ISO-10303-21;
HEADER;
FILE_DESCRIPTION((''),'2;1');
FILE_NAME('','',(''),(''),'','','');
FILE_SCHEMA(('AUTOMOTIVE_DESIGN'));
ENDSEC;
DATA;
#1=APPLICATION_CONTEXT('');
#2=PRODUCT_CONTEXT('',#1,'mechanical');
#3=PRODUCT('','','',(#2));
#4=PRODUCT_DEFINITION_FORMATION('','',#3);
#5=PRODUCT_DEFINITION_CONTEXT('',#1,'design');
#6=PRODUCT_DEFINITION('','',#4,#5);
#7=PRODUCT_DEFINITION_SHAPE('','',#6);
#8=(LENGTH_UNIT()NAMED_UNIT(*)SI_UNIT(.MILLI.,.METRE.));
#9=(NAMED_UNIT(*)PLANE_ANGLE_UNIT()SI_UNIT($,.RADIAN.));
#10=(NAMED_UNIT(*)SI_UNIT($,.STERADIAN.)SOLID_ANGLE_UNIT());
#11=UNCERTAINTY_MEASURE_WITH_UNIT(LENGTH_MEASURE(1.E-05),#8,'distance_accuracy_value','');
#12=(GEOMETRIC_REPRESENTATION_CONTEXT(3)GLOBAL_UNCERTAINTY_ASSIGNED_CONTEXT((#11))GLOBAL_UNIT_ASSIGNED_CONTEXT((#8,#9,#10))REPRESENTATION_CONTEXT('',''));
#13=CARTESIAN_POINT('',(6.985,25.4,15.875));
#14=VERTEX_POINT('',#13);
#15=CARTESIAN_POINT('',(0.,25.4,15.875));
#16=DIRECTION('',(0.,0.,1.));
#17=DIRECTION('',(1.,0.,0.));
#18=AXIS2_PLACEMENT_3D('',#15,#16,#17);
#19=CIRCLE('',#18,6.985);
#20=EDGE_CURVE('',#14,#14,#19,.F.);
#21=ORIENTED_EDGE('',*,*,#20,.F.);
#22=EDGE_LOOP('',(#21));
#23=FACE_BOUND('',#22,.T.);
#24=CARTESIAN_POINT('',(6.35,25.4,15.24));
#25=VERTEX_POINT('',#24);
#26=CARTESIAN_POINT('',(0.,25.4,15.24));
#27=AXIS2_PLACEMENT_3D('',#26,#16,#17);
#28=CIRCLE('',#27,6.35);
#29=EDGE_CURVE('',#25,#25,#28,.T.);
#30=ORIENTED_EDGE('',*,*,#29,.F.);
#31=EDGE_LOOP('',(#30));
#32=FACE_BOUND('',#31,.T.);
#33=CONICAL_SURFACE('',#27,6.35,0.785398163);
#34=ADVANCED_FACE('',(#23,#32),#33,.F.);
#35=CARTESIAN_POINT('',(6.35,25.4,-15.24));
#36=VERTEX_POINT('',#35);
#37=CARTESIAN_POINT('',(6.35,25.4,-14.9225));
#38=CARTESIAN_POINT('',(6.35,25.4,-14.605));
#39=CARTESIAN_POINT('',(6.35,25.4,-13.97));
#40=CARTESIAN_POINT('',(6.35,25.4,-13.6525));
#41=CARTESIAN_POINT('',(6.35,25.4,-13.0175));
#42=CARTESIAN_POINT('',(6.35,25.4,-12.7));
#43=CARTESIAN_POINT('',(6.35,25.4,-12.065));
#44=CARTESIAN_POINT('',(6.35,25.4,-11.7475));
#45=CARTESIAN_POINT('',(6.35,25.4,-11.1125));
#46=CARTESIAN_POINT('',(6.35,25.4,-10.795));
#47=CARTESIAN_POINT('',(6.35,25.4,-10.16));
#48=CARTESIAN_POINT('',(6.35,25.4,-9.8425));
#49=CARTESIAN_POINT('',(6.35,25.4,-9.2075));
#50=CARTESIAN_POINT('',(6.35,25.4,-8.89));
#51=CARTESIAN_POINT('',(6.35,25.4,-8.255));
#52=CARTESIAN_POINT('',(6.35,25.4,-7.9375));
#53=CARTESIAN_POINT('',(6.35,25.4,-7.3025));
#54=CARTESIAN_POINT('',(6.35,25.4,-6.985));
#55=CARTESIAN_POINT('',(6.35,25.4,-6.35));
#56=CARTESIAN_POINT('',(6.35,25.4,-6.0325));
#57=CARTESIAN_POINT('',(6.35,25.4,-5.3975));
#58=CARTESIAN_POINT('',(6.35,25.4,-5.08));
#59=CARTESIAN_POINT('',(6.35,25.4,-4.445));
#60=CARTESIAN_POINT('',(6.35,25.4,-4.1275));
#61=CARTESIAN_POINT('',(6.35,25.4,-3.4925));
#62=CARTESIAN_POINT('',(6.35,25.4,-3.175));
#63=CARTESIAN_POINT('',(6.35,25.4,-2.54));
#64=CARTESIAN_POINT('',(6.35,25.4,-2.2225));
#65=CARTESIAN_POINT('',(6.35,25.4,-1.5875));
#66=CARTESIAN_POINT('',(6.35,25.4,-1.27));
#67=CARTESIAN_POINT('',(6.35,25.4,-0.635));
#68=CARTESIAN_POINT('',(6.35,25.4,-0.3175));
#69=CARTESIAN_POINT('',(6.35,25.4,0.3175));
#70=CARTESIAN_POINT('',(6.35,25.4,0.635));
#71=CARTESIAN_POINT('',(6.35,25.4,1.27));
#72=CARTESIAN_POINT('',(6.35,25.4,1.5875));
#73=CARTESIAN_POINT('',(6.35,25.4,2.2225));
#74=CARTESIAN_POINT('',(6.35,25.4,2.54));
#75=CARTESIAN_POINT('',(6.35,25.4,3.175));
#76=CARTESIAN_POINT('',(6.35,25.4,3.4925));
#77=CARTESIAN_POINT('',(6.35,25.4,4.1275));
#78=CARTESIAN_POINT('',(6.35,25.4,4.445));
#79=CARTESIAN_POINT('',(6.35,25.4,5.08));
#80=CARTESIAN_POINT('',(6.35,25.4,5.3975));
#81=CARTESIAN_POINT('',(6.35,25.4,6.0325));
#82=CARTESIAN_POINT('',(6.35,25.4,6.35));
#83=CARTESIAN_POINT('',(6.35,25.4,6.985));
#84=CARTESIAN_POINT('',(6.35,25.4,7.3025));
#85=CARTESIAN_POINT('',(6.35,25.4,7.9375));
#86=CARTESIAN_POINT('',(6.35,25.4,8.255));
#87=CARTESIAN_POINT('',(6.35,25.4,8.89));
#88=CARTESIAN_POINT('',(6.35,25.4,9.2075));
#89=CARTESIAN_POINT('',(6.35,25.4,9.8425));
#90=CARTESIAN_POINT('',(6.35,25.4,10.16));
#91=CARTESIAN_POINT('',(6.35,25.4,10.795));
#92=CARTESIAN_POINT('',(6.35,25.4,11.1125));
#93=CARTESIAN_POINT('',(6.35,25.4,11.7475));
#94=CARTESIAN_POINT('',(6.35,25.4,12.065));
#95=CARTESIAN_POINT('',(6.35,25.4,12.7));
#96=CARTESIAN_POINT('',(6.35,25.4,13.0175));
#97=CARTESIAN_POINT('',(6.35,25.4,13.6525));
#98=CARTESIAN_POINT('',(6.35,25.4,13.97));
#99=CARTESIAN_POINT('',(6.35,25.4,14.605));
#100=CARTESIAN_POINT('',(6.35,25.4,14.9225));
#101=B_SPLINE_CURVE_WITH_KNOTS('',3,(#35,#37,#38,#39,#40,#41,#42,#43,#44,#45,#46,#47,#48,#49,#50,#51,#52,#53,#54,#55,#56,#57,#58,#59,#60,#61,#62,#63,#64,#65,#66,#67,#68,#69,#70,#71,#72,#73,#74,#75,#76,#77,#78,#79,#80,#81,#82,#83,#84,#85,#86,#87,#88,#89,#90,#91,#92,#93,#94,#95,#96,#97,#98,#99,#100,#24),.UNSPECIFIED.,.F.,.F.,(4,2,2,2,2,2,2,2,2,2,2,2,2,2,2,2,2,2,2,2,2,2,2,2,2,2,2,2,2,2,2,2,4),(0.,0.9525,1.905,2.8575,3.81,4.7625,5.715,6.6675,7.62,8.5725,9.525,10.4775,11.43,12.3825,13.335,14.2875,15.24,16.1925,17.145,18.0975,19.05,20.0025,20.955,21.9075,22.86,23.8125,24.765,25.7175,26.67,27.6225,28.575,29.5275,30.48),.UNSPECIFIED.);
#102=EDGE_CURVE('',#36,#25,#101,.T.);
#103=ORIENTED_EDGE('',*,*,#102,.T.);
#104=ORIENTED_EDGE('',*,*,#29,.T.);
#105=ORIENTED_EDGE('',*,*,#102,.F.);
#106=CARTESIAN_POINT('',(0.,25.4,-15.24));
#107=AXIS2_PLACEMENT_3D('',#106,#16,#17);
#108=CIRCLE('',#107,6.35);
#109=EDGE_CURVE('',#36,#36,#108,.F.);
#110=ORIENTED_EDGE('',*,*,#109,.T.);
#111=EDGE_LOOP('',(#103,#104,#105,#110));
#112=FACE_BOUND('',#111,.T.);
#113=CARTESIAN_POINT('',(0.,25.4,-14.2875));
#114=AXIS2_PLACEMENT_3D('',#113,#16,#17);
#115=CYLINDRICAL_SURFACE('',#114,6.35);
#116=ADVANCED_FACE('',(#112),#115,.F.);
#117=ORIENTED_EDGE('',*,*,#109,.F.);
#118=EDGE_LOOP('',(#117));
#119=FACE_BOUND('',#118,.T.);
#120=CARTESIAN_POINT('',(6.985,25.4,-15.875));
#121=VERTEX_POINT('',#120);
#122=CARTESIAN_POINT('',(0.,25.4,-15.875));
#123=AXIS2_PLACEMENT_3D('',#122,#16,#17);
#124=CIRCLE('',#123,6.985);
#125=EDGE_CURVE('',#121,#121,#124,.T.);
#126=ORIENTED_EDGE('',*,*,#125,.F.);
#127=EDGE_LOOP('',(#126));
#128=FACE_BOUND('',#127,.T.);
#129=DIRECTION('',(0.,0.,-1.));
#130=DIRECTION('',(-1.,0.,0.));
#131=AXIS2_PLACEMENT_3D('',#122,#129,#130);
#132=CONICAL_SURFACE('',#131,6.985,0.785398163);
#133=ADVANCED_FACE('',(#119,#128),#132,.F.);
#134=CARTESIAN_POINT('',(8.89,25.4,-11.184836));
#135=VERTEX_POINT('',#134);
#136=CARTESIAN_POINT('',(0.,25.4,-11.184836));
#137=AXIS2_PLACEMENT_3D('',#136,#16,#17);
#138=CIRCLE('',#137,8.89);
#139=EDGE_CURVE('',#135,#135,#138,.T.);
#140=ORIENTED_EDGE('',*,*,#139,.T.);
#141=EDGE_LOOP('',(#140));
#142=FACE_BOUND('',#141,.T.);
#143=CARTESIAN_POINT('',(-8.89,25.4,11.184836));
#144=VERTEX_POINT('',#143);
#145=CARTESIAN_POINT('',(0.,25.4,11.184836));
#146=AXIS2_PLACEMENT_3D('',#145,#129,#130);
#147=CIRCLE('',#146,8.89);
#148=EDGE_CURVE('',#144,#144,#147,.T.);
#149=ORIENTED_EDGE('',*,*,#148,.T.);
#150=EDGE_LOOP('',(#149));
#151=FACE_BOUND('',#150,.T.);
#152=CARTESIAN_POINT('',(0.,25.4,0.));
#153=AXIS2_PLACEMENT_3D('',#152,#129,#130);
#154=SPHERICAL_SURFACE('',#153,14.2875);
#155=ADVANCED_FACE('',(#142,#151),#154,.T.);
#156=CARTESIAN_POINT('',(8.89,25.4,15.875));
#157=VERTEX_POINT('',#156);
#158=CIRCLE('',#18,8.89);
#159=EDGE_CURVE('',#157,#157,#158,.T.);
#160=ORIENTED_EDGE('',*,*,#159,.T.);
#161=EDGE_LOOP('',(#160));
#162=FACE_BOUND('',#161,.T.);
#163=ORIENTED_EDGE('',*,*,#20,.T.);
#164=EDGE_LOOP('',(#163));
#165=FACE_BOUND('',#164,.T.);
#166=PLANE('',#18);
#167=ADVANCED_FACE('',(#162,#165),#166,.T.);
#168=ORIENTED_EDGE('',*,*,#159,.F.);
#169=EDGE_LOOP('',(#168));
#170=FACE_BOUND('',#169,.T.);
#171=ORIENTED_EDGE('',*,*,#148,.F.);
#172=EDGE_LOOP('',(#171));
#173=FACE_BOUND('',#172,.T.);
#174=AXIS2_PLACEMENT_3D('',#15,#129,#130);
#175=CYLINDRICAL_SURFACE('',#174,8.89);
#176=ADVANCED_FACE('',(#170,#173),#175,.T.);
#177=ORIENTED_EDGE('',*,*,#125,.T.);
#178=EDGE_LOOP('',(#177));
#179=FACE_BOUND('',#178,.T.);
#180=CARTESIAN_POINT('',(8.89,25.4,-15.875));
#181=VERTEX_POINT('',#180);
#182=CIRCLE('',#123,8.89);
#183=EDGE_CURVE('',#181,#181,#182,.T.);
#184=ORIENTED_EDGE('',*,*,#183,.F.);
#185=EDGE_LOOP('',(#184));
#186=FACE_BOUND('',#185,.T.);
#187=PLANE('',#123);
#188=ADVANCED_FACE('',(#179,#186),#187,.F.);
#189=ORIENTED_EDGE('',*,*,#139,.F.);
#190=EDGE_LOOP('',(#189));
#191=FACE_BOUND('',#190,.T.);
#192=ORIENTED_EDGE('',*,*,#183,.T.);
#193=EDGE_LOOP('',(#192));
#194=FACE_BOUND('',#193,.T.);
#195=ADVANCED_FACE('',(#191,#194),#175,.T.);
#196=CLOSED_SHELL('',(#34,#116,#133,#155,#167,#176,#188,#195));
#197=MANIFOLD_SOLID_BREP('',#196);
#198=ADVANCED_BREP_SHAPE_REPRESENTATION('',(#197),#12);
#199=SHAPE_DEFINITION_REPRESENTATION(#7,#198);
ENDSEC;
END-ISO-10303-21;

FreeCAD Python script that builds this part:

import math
import FreeCAD as App
import Part
import Sketcher
from FreeCAD import Vector
Q = App.Units.Quantity


def edges_at(feature, points):
    """Names of the edges that pass closest to the given points."""
    edges = feature.Shape.Edges
    near = lambda p: min(range(len(edges)), key=lambda i: edges[i].distToShape(Part.Vertex(*p))[0])
    return sorted({f"Edge{near(p) + 1}" for p in points})

doc = App.newDocument("Part")
body = doc.addObject("PartDesign::Body", "Body")

# Sketch on XY plane
sketch1 = body.newObject("Sketcher::SketchObject", "Sketch")
sketch1.AttachmentSupport = (doc.getObject("XY_Plane"), [""])
sketch1.MapMode = "FlatFace"
sketch1.addGeometry(Part.LineSegment(Vector(0, 40, 0), Vector(0, 11, 0)), False)
sketch1.addGeometry(Part.ArcOfCircle(Part.Circle(Vector(0, 25, 0), Vector(0, 0, 1), 14), math.radians(-90), math.radians(90)), False)
sketch1.addConstraint(Sketcher.Constraint("Coincident", 0, 1, 1, 2))
sketch1.addConstraint(Sketcher.Constraint("Coincident", 1, 1, 0, 2))
sketch1.addConstraint(Sketcher.Constraint("Vertical", 0))
sketch1.addConstraint(Sketcher.Constraint("PointOnObject", 1, 3, -2))
sketch1.addConstraint(Sketcher.Constraint("PointOnObject", 0, 1, -2))
sketch1.addConstraint(Sketcher.Constraint("DistanceY", -1, 1, 1, 3, Q("1 in")))
sketch1.addConstraint(Sketcher.Constraint("Radius", 1, Q("0.5625 in")))
revolution = body.newObject("PartDesign::Revolution", "Revolution")
revolution.Profile = sketch1
revolution.ReferenceAxis = (sketch1, ["V_Axis"])
revolution.Angle = 360

# Sketch on XY plane
sketch2 = body.newObject("Sketcher::SketchObject", "Sketch001")
sketch2.AttachmentSupport = (doc.getObject("XY_Plane"), [""])
sketch2.MapMode = "FlatFace"
sketch2.addGeometry(Part.Circle(Vector(0, 25, 0), Vector(0, 0, 1), 6), False)
sketch2.addConstraint(Sketcher.Constraint("PointOnObject", 0, 3, -2))
sketch2.addConstraint(Sketcher.Constraint("Diameter", 0, Q("0.5 in")))
sketch2.addConstraint(Sketcher.Constraint("DistanceY", -1, 1, 0, 3, Q("1 in")))
pocket1 = body.newObject("PartDesign::Pocket", "Pocket")
pocket1.Profile = sketch2
pocket1.Type = "ThroughAll"
pocket1.Midplane = True

# Sketch on XY plane
sketch3 = body.newObject("Sketcher::SketchObject", "Sketch002")
sketch3.AttachmentSupport = (doc.getObject("XY_Plane"), [""])
sketch3.MapMode = "FlatFace"
sketch3.addGeometry(Part.Circle(Vector(0, 25, 0), Vector(0, 0, 1), 9), False)
sketch3.addGeometry(Part.Circle(Vector(0, 25, 0), Vector(0, 0, 1), 6), False)
sketch3.addConstraint(Sketcher.Constraint("Coincident", 1, 3, 0, 3))
sketch3.addConstraint(Sketcher.Constraint("PointOnObject", 0, 3, -2))
sketch3.addConstraint(Sketcher.Constraint("Diameter", 0, Q("0.7 in")))
sketch3.addConstraint(Sketcher.Constraint("Diameter", 1, Q("0.5 in")))
sketch3.addConstraint(Sketcher.Constraint("DistanceY", -1, 1, 0, 3, Q("1 in")))
pad1 = body.newObject("PartDesign::Pad", "Pad")
pad1.Profile = sketch3
pad1.Length = Q("1.25 in")
pad1.Midplane = True
doc.recompute()

chamfer = body.newObject("PartDesign::Chamfer", "Chamfer")
chamfer.Base = (pad1, edges_at(pad1, [(-6.35, 25.4, -15.875), (-6.35, 25.4, 15.875)]))
chamfer.Size = Q("0.025 in")

doc.recompute()
